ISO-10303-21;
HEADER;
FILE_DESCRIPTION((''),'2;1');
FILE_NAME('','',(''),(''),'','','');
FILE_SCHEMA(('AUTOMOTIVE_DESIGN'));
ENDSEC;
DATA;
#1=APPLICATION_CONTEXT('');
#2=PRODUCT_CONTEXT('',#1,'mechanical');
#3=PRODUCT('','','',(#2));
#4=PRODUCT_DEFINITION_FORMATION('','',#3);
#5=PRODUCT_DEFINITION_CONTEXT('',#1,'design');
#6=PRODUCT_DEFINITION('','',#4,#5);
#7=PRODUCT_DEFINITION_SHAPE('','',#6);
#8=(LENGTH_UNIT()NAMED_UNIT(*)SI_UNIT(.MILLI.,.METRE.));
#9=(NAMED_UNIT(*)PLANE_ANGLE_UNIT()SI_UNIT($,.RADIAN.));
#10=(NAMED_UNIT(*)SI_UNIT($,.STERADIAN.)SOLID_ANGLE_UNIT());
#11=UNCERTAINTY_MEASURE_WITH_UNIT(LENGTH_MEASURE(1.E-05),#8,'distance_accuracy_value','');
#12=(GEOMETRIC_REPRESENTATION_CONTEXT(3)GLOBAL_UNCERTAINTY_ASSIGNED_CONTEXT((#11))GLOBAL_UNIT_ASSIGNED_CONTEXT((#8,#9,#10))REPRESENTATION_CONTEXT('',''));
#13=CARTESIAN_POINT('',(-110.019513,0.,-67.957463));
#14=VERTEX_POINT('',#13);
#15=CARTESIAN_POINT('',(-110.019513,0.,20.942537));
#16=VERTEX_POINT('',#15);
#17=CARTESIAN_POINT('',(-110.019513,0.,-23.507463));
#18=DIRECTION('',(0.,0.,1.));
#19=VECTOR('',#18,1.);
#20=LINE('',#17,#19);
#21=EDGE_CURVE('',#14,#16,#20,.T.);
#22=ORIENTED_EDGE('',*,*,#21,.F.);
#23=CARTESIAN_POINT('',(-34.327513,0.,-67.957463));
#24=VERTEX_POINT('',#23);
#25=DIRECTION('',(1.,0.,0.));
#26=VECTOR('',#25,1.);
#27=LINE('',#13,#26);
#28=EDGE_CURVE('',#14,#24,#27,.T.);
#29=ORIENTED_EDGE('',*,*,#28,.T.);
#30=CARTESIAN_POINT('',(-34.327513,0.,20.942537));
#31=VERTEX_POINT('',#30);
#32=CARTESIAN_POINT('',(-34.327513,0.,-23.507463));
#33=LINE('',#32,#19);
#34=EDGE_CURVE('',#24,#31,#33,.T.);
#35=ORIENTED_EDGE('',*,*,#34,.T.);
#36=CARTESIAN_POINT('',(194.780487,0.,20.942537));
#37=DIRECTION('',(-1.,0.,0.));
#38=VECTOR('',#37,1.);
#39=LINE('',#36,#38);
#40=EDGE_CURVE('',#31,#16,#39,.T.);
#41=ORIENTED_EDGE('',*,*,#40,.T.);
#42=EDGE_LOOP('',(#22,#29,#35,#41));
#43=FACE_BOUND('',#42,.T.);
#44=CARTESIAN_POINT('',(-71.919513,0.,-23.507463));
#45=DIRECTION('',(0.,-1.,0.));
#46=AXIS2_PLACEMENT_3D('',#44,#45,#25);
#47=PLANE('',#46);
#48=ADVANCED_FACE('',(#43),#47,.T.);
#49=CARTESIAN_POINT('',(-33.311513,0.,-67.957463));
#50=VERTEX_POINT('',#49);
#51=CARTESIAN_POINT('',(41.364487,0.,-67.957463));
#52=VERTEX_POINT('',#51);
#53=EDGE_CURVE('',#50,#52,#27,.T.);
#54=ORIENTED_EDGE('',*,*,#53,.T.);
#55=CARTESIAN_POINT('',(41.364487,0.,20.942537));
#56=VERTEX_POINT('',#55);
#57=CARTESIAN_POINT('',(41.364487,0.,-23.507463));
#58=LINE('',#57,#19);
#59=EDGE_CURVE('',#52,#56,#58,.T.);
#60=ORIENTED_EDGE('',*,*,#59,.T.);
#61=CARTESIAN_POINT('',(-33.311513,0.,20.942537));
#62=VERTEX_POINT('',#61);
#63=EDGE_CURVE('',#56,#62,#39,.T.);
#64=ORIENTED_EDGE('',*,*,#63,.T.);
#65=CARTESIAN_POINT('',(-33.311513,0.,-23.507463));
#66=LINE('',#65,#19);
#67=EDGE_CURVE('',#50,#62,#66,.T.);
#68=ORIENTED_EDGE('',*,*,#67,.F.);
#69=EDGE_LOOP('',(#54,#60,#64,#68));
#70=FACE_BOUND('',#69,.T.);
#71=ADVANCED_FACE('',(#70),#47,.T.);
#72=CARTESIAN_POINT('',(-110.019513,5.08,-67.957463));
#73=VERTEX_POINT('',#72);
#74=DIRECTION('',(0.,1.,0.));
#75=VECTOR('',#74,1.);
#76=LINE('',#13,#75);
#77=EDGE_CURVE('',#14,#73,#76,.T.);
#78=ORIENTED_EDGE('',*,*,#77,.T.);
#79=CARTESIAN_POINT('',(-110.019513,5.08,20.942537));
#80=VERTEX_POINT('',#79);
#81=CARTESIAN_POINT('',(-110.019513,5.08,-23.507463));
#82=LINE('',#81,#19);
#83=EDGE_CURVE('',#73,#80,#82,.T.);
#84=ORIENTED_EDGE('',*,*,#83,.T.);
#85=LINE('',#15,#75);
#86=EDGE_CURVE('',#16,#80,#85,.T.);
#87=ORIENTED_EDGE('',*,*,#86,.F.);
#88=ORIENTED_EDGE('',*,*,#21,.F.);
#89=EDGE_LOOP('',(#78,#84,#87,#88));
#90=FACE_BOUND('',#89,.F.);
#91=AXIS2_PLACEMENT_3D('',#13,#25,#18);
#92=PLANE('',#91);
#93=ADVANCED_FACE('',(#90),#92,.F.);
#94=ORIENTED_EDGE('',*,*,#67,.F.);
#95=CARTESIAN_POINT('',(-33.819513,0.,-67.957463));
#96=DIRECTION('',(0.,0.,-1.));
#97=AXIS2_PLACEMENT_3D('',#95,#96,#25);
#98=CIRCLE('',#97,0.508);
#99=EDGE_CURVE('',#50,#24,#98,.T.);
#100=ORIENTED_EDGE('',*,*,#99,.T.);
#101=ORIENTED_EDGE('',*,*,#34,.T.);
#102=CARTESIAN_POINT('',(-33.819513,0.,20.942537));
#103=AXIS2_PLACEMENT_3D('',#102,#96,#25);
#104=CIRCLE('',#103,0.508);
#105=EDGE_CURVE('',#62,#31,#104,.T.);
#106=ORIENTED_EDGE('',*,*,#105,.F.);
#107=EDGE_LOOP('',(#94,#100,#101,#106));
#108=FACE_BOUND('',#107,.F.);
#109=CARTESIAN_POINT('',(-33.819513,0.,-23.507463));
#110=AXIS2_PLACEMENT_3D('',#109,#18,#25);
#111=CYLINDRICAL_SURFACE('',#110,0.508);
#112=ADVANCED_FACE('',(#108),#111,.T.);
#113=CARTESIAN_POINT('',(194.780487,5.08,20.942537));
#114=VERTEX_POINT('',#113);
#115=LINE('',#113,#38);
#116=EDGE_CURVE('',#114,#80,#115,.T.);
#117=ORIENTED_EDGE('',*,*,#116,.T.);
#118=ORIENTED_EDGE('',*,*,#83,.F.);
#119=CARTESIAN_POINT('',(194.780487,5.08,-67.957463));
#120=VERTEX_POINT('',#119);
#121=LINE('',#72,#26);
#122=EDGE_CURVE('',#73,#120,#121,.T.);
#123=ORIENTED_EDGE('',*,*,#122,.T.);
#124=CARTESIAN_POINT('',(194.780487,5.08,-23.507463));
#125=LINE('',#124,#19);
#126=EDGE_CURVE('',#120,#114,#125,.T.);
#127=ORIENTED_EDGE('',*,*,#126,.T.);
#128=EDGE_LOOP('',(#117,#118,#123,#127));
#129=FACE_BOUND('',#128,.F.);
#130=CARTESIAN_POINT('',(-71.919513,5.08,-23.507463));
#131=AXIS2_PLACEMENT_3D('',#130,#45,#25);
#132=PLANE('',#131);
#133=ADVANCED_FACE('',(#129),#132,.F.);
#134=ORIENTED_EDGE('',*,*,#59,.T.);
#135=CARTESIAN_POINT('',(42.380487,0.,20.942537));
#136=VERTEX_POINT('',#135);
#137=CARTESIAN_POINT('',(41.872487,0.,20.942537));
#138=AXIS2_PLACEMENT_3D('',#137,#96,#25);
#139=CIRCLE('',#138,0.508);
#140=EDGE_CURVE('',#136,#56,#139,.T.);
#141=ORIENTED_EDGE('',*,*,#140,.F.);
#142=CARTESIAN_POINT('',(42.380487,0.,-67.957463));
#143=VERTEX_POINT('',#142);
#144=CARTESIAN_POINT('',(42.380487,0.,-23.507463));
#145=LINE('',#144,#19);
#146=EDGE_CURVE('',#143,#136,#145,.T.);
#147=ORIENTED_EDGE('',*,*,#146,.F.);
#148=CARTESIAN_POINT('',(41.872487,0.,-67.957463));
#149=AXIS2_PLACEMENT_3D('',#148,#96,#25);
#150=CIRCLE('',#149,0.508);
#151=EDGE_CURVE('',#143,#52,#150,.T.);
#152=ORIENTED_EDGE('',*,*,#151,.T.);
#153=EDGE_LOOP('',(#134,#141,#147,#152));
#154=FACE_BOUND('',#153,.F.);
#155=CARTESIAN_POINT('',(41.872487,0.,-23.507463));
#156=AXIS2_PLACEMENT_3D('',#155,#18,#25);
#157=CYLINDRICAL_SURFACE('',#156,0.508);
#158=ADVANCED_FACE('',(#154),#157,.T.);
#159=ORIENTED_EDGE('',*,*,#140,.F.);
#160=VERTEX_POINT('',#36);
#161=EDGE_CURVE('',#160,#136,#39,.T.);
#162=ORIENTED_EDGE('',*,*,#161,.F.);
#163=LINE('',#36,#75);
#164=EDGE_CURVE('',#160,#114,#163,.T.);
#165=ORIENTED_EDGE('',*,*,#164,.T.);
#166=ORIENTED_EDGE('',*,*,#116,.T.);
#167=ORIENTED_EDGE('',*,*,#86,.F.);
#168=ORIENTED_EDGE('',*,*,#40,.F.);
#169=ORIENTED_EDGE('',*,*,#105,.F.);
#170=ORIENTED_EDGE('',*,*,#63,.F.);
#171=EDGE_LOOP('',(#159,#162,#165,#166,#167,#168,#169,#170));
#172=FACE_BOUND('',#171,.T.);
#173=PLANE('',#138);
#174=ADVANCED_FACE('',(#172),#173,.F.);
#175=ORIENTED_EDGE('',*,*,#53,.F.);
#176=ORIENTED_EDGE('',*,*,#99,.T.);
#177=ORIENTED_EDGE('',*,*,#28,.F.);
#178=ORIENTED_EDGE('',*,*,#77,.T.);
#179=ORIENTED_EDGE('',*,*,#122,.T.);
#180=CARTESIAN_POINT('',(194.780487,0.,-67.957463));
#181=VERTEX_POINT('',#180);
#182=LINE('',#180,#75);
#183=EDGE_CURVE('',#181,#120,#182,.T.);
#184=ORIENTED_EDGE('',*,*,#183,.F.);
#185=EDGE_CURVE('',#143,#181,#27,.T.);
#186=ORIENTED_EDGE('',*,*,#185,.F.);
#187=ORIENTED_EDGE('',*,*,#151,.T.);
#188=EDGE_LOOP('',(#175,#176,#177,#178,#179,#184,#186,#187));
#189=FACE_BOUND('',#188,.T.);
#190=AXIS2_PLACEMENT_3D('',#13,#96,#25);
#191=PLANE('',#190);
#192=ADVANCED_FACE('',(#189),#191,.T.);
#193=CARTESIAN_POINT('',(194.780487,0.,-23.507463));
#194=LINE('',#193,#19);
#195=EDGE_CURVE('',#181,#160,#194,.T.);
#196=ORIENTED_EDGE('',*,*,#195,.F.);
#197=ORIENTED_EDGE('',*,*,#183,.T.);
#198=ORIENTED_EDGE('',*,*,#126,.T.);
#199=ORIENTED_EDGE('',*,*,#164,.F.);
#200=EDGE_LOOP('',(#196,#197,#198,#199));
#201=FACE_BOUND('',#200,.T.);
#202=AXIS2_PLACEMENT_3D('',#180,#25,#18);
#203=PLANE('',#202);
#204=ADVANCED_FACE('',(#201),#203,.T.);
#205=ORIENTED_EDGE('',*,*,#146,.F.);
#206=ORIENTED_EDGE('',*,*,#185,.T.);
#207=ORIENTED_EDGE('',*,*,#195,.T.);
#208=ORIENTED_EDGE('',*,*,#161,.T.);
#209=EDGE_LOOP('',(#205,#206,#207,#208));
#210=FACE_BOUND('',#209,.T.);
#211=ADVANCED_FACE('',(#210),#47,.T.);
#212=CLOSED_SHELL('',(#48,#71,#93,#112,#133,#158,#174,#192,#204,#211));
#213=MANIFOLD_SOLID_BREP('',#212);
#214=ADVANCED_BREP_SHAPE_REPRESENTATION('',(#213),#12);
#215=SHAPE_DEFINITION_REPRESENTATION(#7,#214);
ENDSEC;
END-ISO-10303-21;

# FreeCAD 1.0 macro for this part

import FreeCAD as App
import Part
import Sketcher

V = App.Vector
Q = App.Units.Quantity

doc = App.newDocument("Part")
body = doc.addObject("PartDesign::Body", "Body")

sketch1 = doc.addObject("Sketcher::SketchObject", "Sketch")
body.addObject(sketch1)
sketch1.AttachmentSupport = (doc.XZ_Plane, [""])
sketch1.MapMode = "FlatFace"
sketch1.addGeometry([
    Part.LineSegment(V(-110, 21, 0), V(-110, -68, 0)),
    Part.LineSegment(V(-110, -68, 0), V(195, -68, 0)),
    Part.LineSegment(V(195, -68, 0), V(195, 21, 0)),
    Part.LineSegment(V(195, 21, 0), V(-110, 21, 0)),
], False)
sketch1.addConstraint([
    Sketcher.Constraint("Coincident", 0, 2, 1, 1),
    Sketcher.Constraint("Coincident", 1, 2, 2, 1),
    Sketcher.Constraint("Coincident", 2, 2, 3, 1),
    Sketcher.Constraint("Coincident", 3, 2, 0, 1),
    Sketcher.Constraint("Vertical", 0),
    Sketcher.Constraint("Horizontal", 1),
    Sketcher.Constraint("Vertical", 2),
    Sketcher.Constraint("Horizontal", 3),
    Sketcher.Constraint("DistanceX", 1, 1, 1, 2, Q("12 in")),
    Sketcher.Constraint("DistanceY", 0, 2, 0, 1, Q("3.5 in")),
    Sketcher.Constraint("DistanceX", 0, 2, -1, 1, 110.019513),
    Sketcher.Constraint("DistanceY", 0, 2, -1, 1, 67.957463),
])
pad1 = doc.addObject("PartDesign::Pad", "Pad")
body.addObject(pad1)
pad1.Profile = sketch1
pad1.Length = Q("0.2 in")
pad1.Reversed = True

sketch2 = doc.addObject("Sketcher::SketchObject", "Sketch001")
body.addObject(sketch2)
sketch2.AttachmentSupport = (doc.XZ_Plane, [""])
sketch2.MapMode = "FlatFace"
sketch2.addGeometry([
    Part.LineSegment(V(-33.8, 20.9, 0), V(-33.8, -68, 0)),
    Part.LineSegment(V(-33.8, -68, 0), V(-33.3, -68, 0)),
    Part.LineSegment(V(-33.3, -68, 0), V(-33.3, 20.9, 0)),
    Part.LineSegment(V(-33.3, 20.9, 0), V(-33.8, 20.9, 0)),
], False)
sketch2.addGeometry(Part.LineSegment(V(-33.8, 20.9, 0), V(-33.8, -68, 0)), True)
sketch2.addConstraint([
    Sketcher.Constraint("Coincident", 0, 2, 1, 1),
    Sketcher.Constraint("Coincident", 1, 2, 2, 1),
    Sketcher.Constraint("Coincident", 2, 2, 3, 1),
    Sketcher.Constraint("Coincident", 3, 2, 0, 1),
    Sketcher.Constraint("Vertical", 0),
    Sketcher.Constraint("Horizontal", 1),
    Sketcher.Constraint("Vertical", 2),
    Sketcher.Constraint("Horizontal", 3),
    Sketcher.Constraint("Vertical", 4),
    Sketcher.Constraint("Coincident", 4, 1, 3, 2),
    Sketcher.Constraint("Horizontal", 1, 2, 4, 2),
    Sketcher.Constraint("DistanceY", 0, 2, 0, 1, Q("3.5 in")),
    Sketcher.Constraint("DistanceX", 1, 1, 1, 2, Q("0.02 in")),
    Sketcher.Constraint("DistanceX", 0, 2, -1, 1, 33.819513),
    Sketcher.Constraint("DistanceY", 0, 2, -1, 1, 67.957463),
])
revolution = doc.addObject("PartDesign::Revolution", "Revolution")
body.addObject(revolution)
revolution.Profile = sketch2
revolution.ReferenceAxis = (sketch2, ["Axis0"])
revolution.Angle = 360

sketch3 = doc.addObject("Sketcher::SketchObject", "Sketch002")
body.addObject(sketch3)
sketch3.AttachmentSupport = (doc.XZ_Plane, [""])
sketch3.MapMode = "FlatFace"
sketch3.addGeometry([
    Part.LineSegment(V(41.9, 20.9, 0), V(41.9, -68, 0)),
    Part.LineSegment(V(41.9, -68, 0), V(42.4, -68, 0)),
    Part.LineSegment(V(42.4, -68, 0), V(42.4, 20.9, 0)),
    Part.LineSegment(V(42.4, 20.9, 0), V(41.9, 20.9, 0)),
], False)
sketch3.addGeometry(Part.LineSegment(V(41.9, 20.9, 0), V(41.9, -68, 0)), True)
sketch3.addConstraint([
    Sketcher.Constraint("Coincident", 0, 2, 1, 1),
    Sketcher.Constraint("Coincident", 1, 2, 2, 1),
    Sketcher.Constraint("Coincident", 2, 2, 3, 1),
    Sketcher.Constraint("Coincident", 3, 2, 0, 1),
    Sketcher.Constraint("Vertical", 0),
    Sketcher.Constraint("Horizontal", 1),
    Sketcher.Constraint("Vertical", 2),
    Sketcher.Constraint("Horizontal", 3),
    Sketcher.Constraint("Vertical", 4),
    Sketcher.Constraint("Coincident", 4, 1, 3, 2),
    Sketcher.Constraint("Horizontal", 1, 2, 4, 2),
    Sketcher.Constraint("DistanceY", 0, 2, 0, 1, Q("3.5 in")),
    Sketcher.Constraint("DistanceX", 1, 1, 1, 2, Q("0.02 in")),
    Sketcher.Constraint("DistanceX", -1, 1, 0, 2, 41.872487),
    Sketcher.Constraint("DistanceY", 0, 2, -1, 1, 67.957463),
])
revolution2 = doc.addObject("PartDesign::Revolution", "Revolution001")
body.addObject(revolution2)
revolution2.Profile = sketch3
revolution2.ReferenceAxis = (sketch3, ["Axis0"])
revolution2.Angle = 360

doc.recompute()
